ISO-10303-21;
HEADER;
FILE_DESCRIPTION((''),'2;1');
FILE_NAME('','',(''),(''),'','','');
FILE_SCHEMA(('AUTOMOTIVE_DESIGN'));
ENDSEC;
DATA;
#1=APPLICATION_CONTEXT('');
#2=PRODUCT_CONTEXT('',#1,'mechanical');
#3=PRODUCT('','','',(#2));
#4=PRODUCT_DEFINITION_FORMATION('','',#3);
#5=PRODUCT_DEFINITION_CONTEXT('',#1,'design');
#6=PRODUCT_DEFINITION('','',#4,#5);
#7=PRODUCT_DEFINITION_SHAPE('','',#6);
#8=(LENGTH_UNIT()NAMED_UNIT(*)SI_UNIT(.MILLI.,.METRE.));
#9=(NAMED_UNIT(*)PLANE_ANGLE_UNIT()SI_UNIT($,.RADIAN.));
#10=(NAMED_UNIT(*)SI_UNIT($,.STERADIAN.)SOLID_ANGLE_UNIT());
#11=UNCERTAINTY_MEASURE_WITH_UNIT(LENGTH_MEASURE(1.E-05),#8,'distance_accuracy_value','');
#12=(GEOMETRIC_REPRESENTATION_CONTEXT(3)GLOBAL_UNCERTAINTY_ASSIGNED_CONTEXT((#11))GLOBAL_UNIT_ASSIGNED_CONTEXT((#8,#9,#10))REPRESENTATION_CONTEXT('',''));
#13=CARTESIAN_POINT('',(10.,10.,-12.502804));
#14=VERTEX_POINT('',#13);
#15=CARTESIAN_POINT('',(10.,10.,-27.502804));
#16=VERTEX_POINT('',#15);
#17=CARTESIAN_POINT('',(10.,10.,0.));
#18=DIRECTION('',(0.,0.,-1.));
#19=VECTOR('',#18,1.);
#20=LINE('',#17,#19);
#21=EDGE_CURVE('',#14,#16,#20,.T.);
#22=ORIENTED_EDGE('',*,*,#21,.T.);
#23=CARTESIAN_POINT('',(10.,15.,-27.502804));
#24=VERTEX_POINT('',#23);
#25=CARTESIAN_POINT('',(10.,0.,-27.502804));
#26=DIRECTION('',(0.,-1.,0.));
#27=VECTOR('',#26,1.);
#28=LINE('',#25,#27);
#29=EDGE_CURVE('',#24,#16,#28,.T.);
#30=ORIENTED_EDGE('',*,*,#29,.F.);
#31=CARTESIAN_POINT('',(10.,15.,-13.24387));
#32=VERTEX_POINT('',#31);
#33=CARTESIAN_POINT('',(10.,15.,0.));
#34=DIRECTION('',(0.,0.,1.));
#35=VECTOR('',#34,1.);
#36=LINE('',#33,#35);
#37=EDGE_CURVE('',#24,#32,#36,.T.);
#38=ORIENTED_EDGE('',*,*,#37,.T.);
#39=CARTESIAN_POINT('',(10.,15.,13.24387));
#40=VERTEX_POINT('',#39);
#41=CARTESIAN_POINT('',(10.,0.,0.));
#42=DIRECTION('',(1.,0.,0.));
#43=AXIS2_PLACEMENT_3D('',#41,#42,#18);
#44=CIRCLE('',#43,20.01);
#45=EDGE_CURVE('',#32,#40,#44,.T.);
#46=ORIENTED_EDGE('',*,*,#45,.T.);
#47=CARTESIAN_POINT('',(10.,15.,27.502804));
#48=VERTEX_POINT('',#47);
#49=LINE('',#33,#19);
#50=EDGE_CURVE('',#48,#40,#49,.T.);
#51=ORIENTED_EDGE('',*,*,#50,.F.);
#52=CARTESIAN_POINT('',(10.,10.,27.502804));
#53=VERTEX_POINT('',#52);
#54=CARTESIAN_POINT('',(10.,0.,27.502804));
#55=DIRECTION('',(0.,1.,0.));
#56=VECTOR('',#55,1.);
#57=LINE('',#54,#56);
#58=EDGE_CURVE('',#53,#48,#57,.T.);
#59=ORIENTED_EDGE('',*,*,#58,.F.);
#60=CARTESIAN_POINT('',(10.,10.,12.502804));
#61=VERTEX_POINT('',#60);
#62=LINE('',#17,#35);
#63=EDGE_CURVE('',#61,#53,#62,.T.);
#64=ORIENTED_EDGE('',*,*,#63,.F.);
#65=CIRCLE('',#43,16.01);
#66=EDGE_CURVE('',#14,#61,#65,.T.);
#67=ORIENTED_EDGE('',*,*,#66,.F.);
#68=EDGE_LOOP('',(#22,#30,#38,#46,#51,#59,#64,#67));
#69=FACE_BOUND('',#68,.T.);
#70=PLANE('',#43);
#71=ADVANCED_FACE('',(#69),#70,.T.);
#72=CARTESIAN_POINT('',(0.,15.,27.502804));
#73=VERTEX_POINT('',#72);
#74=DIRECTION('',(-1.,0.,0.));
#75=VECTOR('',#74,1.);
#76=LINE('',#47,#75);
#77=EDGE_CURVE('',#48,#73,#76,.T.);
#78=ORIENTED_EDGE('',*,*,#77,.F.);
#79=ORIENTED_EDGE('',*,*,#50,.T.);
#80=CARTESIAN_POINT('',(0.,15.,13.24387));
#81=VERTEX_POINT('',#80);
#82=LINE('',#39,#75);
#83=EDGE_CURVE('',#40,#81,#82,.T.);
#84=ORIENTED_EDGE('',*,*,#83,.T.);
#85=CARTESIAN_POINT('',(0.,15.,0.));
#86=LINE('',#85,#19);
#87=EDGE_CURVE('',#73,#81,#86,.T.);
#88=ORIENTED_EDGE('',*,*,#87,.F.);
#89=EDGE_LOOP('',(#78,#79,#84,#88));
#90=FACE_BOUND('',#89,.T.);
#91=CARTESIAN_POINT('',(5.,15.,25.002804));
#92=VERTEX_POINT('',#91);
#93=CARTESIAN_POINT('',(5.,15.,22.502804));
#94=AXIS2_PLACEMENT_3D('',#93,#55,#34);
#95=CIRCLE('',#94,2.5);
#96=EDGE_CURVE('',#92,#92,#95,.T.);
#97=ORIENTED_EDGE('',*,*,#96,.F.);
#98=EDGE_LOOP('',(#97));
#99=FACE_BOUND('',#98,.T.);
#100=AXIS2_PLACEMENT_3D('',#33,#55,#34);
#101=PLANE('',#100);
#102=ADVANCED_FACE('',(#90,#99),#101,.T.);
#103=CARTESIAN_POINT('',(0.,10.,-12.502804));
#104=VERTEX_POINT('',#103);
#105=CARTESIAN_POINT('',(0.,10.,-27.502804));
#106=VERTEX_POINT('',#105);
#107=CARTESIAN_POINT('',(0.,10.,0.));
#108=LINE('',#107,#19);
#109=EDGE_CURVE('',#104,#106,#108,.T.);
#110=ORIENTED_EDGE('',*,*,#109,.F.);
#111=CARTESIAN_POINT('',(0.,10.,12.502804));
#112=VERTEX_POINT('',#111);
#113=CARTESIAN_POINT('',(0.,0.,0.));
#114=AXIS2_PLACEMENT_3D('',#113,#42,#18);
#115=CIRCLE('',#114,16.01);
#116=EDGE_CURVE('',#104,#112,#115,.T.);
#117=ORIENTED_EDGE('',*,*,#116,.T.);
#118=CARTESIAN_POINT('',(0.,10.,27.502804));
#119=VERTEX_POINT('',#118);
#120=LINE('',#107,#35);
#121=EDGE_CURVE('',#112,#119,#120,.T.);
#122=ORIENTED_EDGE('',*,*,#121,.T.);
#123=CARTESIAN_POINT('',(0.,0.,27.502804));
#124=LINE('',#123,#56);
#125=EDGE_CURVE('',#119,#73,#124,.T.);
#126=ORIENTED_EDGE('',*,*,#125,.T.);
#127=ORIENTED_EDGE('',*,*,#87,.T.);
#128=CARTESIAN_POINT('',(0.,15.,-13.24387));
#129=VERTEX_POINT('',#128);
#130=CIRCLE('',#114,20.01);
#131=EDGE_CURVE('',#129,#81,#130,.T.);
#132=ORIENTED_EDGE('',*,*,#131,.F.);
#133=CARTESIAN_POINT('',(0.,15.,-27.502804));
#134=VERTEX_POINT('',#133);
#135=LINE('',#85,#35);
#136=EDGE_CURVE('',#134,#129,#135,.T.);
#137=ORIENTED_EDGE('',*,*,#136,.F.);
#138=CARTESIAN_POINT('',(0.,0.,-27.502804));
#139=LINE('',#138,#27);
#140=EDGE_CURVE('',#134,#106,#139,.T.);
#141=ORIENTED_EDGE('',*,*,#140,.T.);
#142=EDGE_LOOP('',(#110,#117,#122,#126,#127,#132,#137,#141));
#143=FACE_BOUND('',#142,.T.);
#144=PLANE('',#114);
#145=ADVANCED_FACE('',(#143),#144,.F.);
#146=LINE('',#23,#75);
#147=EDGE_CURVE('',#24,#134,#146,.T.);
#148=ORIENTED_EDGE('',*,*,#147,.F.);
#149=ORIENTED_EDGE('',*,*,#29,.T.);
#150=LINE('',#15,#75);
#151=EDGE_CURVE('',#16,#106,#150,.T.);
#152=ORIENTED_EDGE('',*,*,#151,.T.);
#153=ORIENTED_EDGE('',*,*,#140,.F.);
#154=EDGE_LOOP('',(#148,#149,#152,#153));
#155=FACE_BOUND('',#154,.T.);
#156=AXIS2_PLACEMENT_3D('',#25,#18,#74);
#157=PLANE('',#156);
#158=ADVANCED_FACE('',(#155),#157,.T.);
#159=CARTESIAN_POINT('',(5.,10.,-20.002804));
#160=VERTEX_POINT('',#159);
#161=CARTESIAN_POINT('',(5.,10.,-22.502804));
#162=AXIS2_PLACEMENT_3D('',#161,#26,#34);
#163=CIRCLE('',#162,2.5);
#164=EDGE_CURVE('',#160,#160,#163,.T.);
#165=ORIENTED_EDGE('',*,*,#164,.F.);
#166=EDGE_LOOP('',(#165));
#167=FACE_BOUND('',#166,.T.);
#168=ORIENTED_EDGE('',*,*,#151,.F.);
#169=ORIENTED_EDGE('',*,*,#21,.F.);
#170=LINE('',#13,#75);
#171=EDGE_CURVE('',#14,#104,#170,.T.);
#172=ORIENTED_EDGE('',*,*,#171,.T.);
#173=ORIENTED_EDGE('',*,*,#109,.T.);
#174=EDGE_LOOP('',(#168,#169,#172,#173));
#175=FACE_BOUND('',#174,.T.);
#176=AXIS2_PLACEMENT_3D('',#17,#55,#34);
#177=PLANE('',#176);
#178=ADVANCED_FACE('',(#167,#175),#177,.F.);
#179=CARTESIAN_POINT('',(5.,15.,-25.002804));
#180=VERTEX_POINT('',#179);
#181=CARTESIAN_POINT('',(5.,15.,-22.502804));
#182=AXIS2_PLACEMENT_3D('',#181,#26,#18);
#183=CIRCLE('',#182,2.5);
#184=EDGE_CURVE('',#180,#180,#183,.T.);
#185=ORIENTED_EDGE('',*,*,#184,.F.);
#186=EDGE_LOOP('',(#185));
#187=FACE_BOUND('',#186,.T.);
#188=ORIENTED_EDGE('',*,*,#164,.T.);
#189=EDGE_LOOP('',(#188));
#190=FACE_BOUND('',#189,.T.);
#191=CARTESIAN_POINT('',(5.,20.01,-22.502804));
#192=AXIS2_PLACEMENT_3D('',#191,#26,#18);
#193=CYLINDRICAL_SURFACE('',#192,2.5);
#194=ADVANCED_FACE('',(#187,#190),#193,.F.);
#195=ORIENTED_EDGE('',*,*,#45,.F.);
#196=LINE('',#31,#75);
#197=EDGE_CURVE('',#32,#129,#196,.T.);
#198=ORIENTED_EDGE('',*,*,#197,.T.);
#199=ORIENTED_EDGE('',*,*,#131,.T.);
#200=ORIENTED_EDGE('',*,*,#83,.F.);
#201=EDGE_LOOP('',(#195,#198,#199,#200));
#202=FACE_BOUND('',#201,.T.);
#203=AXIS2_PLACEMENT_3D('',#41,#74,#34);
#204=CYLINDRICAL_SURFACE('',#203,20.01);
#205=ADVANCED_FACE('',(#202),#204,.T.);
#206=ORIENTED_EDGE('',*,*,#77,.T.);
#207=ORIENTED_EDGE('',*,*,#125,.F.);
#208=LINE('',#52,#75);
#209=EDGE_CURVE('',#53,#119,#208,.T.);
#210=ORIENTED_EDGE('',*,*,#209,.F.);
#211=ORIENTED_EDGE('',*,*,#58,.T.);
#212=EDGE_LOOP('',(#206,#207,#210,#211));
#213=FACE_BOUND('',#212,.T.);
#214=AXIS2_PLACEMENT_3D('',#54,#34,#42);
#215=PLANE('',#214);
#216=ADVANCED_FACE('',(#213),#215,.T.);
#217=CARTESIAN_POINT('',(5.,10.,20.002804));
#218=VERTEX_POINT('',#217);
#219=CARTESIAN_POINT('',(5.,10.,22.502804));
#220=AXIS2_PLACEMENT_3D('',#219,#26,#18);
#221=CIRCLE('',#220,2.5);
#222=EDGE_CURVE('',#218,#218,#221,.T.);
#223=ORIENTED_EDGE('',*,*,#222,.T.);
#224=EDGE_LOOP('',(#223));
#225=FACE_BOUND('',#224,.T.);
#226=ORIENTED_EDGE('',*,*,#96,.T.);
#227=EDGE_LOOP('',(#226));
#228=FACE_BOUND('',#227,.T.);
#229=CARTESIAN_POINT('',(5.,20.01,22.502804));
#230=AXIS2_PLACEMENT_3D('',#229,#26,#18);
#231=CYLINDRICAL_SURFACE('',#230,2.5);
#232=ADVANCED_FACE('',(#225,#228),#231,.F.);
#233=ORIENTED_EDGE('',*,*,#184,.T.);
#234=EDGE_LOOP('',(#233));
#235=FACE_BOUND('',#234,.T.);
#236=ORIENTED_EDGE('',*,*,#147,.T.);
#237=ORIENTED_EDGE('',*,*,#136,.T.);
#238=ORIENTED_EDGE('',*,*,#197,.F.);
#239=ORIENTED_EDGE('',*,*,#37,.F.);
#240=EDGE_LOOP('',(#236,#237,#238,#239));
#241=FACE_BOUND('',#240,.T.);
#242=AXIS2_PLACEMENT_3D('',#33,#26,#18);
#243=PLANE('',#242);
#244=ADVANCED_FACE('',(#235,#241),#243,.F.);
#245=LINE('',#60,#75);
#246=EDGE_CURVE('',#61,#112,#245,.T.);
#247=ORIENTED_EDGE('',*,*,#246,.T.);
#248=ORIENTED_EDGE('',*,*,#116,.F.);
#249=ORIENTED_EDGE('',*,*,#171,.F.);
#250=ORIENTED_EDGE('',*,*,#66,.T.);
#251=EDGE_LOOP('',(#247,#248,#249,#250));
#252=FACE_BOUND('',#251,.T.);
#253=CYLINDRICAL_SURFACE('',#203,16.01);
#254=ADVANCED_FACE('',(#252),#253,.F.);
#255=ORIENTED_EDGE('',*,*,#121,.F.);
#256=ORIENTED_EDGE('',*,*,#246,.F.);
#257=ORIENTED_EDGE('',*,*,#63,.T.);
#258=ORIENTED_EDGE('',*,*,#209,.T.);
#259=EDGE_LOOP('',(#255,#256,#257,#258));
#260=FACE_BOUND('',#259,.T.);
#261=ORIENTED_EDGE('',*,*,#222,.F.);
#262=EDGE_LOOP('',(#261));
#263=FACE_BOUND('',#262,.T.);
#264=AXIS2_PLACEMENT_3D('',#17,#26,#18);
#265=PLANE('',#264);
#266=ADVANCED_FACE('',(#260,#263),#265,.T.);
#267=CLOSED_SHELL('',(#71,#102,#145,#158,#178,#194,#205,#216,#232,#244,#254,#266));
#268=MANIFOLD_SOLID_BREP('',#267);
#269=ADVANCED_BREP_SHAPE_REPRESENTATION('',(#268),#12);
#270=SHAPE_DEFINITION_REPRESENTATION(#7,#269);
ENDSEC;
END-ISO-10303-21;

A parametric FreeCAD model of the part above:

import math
import FreeCAD as App
import Part
import Sketcher
Q = App.Units.Quantity

doc = App.newDocument("Part")
body = doc.addObject("PartDesign::Body", "Body")

# Sketch on YZ plane
sketch1 = body.newObject("Sketcher::SketchObject", "Sketch")
sketch1.AttachmentSupport = (doc.getObject("YZ_Plane"), [""])
sketch1.MapMode = "FlatFace"
sketch1.addGeometry([
    Part.LineSegment(App.Vector(10, 27.502804, 0), App.Vector(10, 12.502804, 0)),  # 0
    Part.ArcOfCircle(Part.Circle(App.Vector(0, 0, 0), App.Vector(0, 0, 1), 16.01), math.radians(-51.34646), math.radians(51.34646)),  # 1
    Part.LineSegment(App.Vector(10, -12.502804, 0), App.Vector(10, -27.502804, 0)),  # 2
    Part.LineSegment(App.Vector(10, -27.502804, 0), App.Vector(15, -27.502804, 0)),  # 3
    Part.LineSegment(App.Vector(15, -27.502804, 0), App.Vector(15, -13.24387, 0)),  # 4
    Part.ArcOfCircle(Part.Circle(App.Vector(0, 0, 0), App.Vector(0, 0, 1), 20.01), math.radians(-41.442079), math.radians(41.442079)),  # 5
    Part.LineSegment(App.Vector(15, 13.24387, 0), App.Vector(15, 27.502804, 0)),  # 6
    Part.LineSegment(App.Vector(15, 27.502804, 0), App.Vector(10, 27.502804, 0)),  # 7
], False)
sketch1.addConstraint([
    Sketcher.Constraint("Coincident", 0, 2, 1, 2),
    Sketcher.Constraint("Coincident", 1, 1, 2, 1),
    Sketcher.Constraint("Coincident", 2, 2, 3, 1),
    Sketcher.Constraint("Coincident", 3, 2, 4, 1),
    Sketcher.Constraint("Coincident", 4, 2, 5, 1),
    Sketcher.Constraint("Coincident", 5, 2, 6, 1),
    Sketcher.Constraint("Coincident", 6, 2, 7, 1),
    Sketcher.Constraint("Coincident", 7, 2, 0, 1),
    Sketcher.Constraint("Vertical", 0),
    Sketcher.Constraint("Vertical", 2),
    Sketcher.Constraint("Horizontal", 3),
    Sketcher.Constraint("Vertical", 4),
    Sketcher.Constraint("Vertical", 6),
    Sketcher.Constraint("Horizontal", 7),
    Sketcher.Constraint("Coincident", 1, 3, -1, 1),
    Sketcher.Constraint("Coincident", 5, 3, -1, 1),
    Sketcher.Constraint("Symmetric", 3, 2, 6, 2, -1),
    Sketcher.Constraint("Vertical", 0, 2, 1, 1),
    Sketcher.Constraint("DistanceX", 3, 1, 3, 2, Q("5 mm")),
    Sketcher.Constraint("DistanceY", 0, 2, 0, 1, Q("15 mm")),
    Sketcher.Constraint("Radius", 1, Q("16.01 mm")),
    Sketcher.Constraint("Radius", 5, Q("20.01 mm")),
    Sketcher.Constraint("DistanceX", -1, 1, 0, 2, Q("10 mm")),
])
pad1 = body.newObject("PartDesign::Pad", "Pad")
pad1.Profile = sketch1
pad1.Length = 10

# Sketch on XZ plane
sketch2 = body.newObject("Sketcher::SketchObject", "Sketch001")
sketch2.AttachmentSupport = (doc.getObject("XZ_Plane"), [""])
sketch2.MapMode = "FlatFace"
sketch2.AttachmentOffset = App.Placement(App.Vector(0, 0, -10), App.Rotation())
sketch2.addGeometry([
    Part.Circle(App.Vector(5, 22.502804, 0), App.Vector(0, 0, 1), 2.5),
    Part.Circle(App.Vector(5, -22.502804, 0), App.Vector(0, 0, 1), 2.5),
], False)
sketch2.addConstraint([
    Sketcher.Constraint("Equal", 0, 1),
    Sketcher.Constraint("Symmetric", 0, 3, 1, 3, -1),
    Sketcher.Constraint("Diameter", 0, Q("5 mm")),
    Sketcher.Constraint("DistanceX", -1, 1, 0, 3, Q("5 mm")),
    Sketcher.Constraint("DistanceY", -1, 1, 0, 3, Q("22.502804 mm")),
])
pocket1 = body.newObject("PartDesign::Pocket", "Pocket")
pocket1.Profile = sketch2
pocket1.Type = "ThroughAll"

doc.recompute()
